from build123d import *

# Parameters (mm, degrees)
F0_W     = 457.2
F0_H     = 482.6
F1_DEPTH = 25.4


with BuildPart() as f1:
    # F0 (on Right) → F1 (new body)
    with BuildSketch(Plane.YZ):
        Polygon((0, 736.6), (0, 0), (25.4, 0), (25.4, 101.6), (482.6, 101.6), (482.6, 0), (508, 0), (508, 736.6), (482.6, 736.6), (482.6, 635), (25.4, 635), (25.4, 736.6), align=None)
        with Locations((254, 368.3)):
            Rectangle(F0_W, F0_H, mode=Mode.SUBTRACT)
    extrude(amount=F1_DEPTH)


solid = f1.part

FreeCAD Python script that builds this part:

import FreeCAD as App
import Part
import Sketcher

V = App.Vector
Q = App.Units.Quantity

doc = App.newDocument("Part")
body = doc.addObject("PartDesign::Body", "Body")

# Sketch on YZ plane
sketch1 = body.newObject("Sketcher::SketchObject", "Sketch")
sketch1.AttachmentSupport = (doc.getObject("YZ_Plane"), [""])
sketch1.MapMode = "FlatFace"
sketch1.addGeometry(Part.LineSegment(V(0, 737, 0), V(0, 0, 0)), False)
sketch1.addGeometry(Part.LineSegment(V(0, 0, 0), V(25, 0, 0)), False)
sketch1.addGeometry(Part.LineSegment(V(25, 0, 0), V(25, 102, 0)), False)
sketch1.addGeometry(Part.LineSegment(V(25, 102, 0), V(483, 102, 0)), False)
sketch1.addGeometry(Part.LineSegment(V(483, 102, 0), V(483, 0, 0)), False)
sketch1.addGeometry(Part.LineSegment(V(483, 0, 0), V(508, 0, 0)), False)
sketch1.addGeometry(Part.LineSegment(V(508, 0, 0), V(508, 737, 0)), False)
sketch1.addGeometry(Part.LineSegment(V(508, 737, 0), V(483, 737, 0)), False)
sketch1.addGeometry(Part.LineSegment(V(483, 737, 0), V(483, 635, 0)), False)
sketch1.addGeometry(Part.LineSegment(V(483, 635, 0), V(25, 635, 0)), False)
sketch1.addGeometry(Part.LineSegment(V(25, 635, 0), V(25, 737, 0)), False)
sketch1.addGeometry(Part.LineSegment(V(25, 737, 0), V(0, 737, 0)), False)
sketch1.addGeometry(Part.LineSegment(V(483, 127, 0), V(25, 127, 0)), False)
sketch1.addGeometry(Part.LineSegment(V(25, 127, 0), V(25, 610, 0)), False)
sketch1.addGeometry(Part.LineSegment(V(25, 610, 0), V(483, 610, 0)), False)
sketch1.addGeometry(Part.LineSegment(V(483, 610, 0), V(483, 127, 0)), False)
sketch1.addConstraint(Sketcher.Constraint("Coincident", 0, 2, 1, 1))
sketch1.addConstraint(Sketcher.Constraint("Coincident", 1, 2, 2, 1))
sketch1.addConstraint(Sketcher.Constraint("Coincident", 2, 2, 3, 1))
sketch1.addConstraint(Sketcher.Constraint("Coincident", 3, 2, 4, 1))
sketch1.addConstraint(Sketcher.Constraint("Coincident", 4, 2, 5, 1))
sketch1.addConstraint(Sketcher.Constraint("Coincident", 5, 2, 6, 1))
sketch1.addConstraint(Sketcher.Constraint("Coincident", 6, 2, 7, 1))
sketch1.addConstraint(Sketcher.Constraint("Coincident", 7, 2, 8, 1))
sketch1.addConstraint(Sketcher.Constraint("Coincident", 8, 2, 9, 1))
sketch1.addConstraint(Sketcher.Constraint("Coincident", 9, 2, 10, 1))
sketch1.addConstraint(Sketcher.Constraint("Coincident", 10, 2, 11, 1))
sketch1.addConstraint(Sketcher.Constraint("Coincident", 11, 2, 0, 1))
sketch1.addConstraint(Sketcher.Constraint("Coincident", 12, 2, 13, 1))
sketch1.addConstraint(Sketcher.Constraint("Coincident", 13, 2, 14, 1))
sketch1.addConstraint(Sketcher.Constraint("Coincident", 14, 2, 15, 1))
sketch1.addConstraint(Sketcher.Constraint("Coincident", 15, 2, 12, 1))
sketch1.addConstraint(Sketcher.Constraint("Vertical", 0))
sketch1.addConstraint(Sketcher.Constraint("Horizontal", 1))
sketch1.addConstraint(Sketcher.Constraint("Vertical", 2))
sketch1.addConstraint(Sketcher.Constraint("Horizontal", 3))
sketch1.addConstraint(Sketcher.Constraint("Vertical", 4))
sketch1.addConstraint(Sketcher.Constraint("Horizontal", 5))
sketch1.addConstraint(Sketcher.Constraint("Vertical", 6))
sketch1.addConstraint(Sketcher.Constraint("Horizontal", 7))
sketch1.addConstraint(Sketcher.Constraint("Vertical", 8))
sketch1.addConstraint(Sketcher.Constraint("Horizontal", 9))
sketch1.addConstraint(Sketcher.Constraint("Vertical", 10))
sketch1.addConstraint(Sketcher.Constraint("Horizontal", 11))
sketch1.addConstraint(Sketcher.Constraint("Horizontal", 12))
sketch1.addConstraint(Sketcher.Constraint("Vertical", 13))
sketch1.addConstraint(Sketcher.Constraint("Horizontal", 14))
sketch1.addConstraint(Sketcher.Constraint("Vertical", 15))
sketch1.addConstraint(Sketcher.Constraint("Coincident", 0, 2, -1, 1))
sketch1.addConstraint(Sketcher.Constraint("PointOnObject", 4, 2, -1))
sketch1.addConstraint(Sketcher.Constraint("Horizontal", 7, 2, 10, 2))
sketch1.addConstraint(Sketcher.Constraint("Vertical", 4, 2, 7, 2))
sketch1.addConstraint(Sketcher.Constraint("Vertical", 2, 2, 9, 2))
sketch1.addConstraint(Sketcher.Constraint("Vertical", 10, 2, 12, 2))
sketch1.addConstraint(Sketcher.Constraint("Vertical", 8, 2, 14, 2))
sketch1.addConstraint(Sketcher.Constraint("Equal", 1, 5))
sketch1.addConstraint(Sketcher.Constraint("Equal", 4, 8))
sketch1.addConstraint(Sketcher.Constraint("DistanceX", 1, 1, 1, 2, Q("1 in")))
sketch1.addConstraint(Sketcher.Constraint("DistanceX", 3, 1, 3, 2, Q("18 in")))
sketch1.addConstraint(Sketcher.Constraint("DistanceY", 0, 2, 0, 1, Q("29 in")))
sketch1.addConstraint(Sketcher.Constraint("DistanceY", 2, 1, 2, 2, Q("4 in")))
sketch1.addConstraint(Sketcher.Constraint("DistanceY", 13, 1, 13, 2, Q("19 in")))
sketch1.addConstraint(Sketcher.Constraint("DistanceY", -1, 1, 12, 2, Q("5 in")))
pad1 = body.newObject("PartDesign::Pad", "Pad")
pad1.Profile = sketch1
pad1.Length = Q("1 in")

doc.recompute()
